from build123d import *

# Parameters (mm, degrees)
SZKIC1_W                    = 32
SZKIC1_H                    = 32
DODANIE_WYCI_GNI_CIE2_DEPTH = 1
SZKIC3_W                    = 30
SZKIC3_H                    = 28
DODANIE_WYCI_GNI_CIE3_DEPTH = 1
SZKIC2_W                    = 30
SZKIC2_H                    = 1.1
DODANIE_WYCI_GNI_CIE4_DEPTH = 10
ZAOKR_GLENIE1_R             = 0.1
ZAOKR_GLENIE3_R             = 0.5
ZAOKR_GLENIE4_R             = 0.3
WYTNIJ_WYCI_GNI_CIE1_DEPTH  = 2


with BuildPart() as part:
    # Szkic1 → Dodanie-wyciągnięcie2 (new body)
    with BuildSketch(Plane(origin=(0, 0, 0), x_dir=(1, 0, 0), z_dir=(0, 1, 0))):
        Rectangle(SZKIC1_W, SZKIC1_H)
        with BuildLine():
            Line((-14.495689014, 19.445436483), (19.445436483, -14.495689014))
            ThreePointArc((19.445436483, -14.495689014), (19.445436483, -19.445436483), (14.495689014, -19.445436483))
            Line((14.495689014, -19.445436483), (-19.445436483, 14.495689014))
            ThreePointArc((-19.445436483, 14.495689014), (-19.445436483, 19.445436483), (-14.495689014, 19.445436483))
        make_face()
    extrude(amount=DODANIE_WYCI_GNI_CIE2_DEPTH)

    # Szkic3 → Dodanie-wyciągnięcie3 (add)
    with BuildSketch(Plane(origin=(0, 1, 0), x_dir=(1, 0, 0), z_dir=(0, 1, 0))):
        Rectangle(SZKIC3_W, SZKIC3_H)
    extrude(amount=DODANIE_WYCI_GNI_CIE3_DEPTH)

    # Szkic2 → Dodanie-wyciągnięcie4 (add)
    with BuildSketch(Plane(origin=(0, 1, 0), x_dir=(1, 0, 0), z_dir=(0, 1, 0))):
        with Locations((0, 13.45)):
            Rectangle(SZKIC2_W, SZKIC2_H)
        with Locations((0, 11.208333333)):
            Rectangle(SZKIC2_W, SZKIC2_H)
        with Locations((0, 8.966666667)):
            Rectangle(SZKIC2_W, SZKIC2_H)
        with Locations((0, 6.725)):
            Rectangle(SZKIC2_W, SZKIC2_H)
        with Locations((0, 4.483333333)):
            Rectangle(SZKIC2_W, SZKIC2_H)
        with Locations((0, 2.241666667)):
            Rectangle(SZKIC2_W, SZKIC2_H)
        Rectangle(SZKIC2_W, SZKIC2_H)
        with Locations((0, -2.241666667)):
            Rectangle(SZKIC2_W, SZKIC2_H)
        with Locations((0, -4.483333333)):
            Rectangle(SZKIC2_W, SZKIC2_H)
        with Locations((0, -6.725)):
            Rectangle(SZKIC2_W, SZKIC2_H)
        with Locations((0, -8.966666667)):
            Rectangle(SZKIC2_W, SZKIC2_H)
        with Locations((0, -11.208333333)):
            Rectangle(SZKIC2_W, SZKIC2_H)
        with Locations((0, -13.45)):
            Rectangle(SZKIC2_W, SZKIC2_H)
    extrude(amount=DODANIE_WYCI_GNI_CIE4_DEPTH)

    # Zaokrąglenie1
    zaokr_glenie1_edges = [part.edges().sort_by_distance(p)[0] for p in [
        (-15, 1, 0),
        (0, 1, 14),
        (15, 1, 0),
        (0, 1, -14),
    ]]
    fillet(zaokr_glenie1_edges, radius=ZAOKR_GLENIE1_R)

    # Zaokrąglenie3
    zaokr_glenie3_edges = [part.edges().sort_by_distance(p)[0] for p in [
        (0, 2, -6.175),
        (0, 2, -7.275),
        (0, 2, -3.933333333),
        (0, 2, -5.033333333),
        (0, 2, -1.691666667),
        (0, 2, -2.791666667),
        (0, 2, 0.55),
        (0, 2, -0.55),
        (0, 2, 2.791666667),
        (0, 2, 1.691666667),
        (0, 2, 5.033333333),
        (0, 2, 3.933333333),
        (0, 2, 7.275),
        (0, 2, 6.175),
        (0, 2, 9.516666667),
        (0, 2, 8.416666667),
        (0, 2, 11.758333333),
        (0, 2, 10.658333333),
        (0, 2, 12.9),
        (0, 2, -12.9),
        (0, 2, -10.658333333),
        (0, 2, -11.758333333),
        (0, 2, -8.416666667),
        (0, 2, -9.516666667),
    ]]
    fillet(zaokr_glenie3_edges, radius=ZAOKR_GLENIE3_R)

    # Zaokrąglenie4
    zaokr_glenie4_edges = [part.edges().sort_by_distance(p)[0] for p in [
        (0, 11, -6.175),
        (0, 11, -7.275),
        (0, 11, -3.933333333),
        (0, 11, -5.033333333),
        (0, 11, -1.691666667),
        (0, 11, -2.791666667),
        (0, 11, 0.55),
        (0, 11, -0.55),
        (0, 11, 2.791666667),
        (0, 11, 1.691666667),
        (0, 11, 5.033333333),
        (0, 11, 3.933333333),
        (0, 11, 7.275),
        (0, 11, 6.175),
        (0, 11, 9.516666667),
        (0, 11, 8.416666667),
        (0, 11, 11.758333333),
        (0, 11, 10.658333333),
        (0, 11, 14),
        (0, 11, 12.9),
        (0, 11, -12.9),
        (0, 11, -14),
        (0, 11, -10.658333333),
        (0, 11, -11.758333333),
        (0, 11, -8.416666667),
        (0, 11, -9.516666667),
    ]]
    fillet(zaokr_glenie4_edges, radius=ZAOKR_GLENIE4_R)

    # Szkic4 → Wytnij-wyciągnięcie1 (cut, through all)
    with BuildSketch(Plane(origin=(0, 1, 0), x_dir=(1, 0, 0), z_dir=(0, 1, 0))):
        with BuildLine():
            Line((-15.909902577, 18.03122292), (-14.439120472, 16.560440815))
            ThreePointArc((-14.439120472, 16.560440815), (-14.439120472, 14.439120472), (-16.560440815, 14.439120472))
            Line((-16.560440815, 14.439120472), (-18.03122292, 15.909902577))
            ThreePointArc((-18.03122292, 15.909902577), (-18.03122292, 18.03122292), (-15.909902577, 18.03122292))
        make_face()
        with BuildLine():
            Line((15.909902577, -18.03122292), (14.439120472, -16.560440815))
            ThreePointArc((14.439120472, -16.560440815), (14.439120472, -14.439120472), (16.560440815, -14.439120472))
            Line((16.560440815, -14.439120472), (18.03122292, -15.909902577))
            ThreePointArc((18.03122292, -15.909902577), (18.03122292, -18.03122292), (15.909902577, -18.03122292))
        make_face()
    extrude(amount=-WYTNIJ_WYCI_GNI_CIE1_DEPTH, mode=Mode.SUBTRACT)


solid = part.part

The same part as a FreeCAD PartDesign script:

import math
import FreeCAD as App
import Part
import Sketcher

V = App.Vector
Q = App.Units.Quantity


def edges_at(feature, points):
    """Names of the edges that pass closest to the given points."""
    edges = feature.Shape.Edges
    near = lambda p: min(range(len(edges)), key=lambda i: edges[i].distToShape(Part.Vertex(*p))[0])
    return sorted({f"Edge{near(p) + 1}" for p in points})

doc = App.newDocument("Part")
body = doc.addObject("PartDesign::Body", "Body")

sketch1 = body.newObject("Sketcher::SketchObject", "Sketch")
sketch1.AttachmentSupport = (doc.getObject("XZ_Plane"), [""])
sketch1.MapMode = "FlatFace"
sketch1.addGeometry([
    Part.LineSegment(V(-16, -11.050253, 0), V(-16, 16, 0)),
    Part.LineSegment(V(-16, 16, 0), V(11.050253, 16, 0)),
    Part.LineSegment(V(11.050253, 16, 0), V(14.495689, 19.445436, 0)),
    Part.ArcOfCircle(Part.Circle(V(16.970563, 16.970563, 0), V(0, 0, 1), 3.5), math.radians(-45), math.radians(135)),
    Part.LineSegment(V(19.445436, 14.495689, 0), V(16, 11.050253, 0)),
    Part.LineSegment(V(16, 11.050253, 0), V(16, -16, 0)),
    Part.LineSegment(V(16, -16, 0), V(-11.050253, -16, 0)),
    Part.LineSegment(V(-11.050253, -16, 0), V(-14.495689, -19.445436, 0)),
    Part.ArcOfCircle(Part.Circle(V(-16.970563, -16.970563, 0), V(0, 0, 1), 3.5), math.radians(135), math.radians(315)),
    Part.LineSegment(V(-19.445436, -14.495689, 0), V(-16, -11.050253, 0)),
], False)
sketch1.addConstraint([
    Sketcher.Constraint("Coincident", 0, 2, 1, 1),
    Sketcher.Constraint("Coincident", 1, 2, 2, 1),
    Sketcher.Constraint("Tangent", 2, 2, 3, 2),
    Sketcher.Constraint("Tangent", 3, 1, 4, 1),
    Sketcher.Constraint("Coincident", 4, 2, 5, 1),
    Sketcher.Constraint("Coincident", 5, 2, 6, 1),
    Sketcher.Constraint("Coincident", 6, 2, 7, 1),
    Sketcher.Constraint("Tangent", 7, 2, 8, 2),
    Sketcher.Constraint("Tangent", 8, 1, 9, 1),
    Sketcher.Constraint("Coincident", 9, 2, 0, 1),
    Sketcher.Constraint("Vertical", 0),
    Sketcher.Constraint("Horizontal", 1),
    Sketcher.Constraint("Vertical", 5),
    Sketcher.Constraint("Horizontal", 6),
    Sketcher.Constraint("Equal", 3, 8),
    Sketcher.Constraint("Symmetric", 3, 3, 8, 3, -1, 1),
    Sketcher.Constraint("Symmetric", 0, 2, 5, 2, -1, 1),
    Sketcher.Constraint("Parallel", 2, 4),
    Sketcher.Constraint("Parallel", 4, 7),
    Sketcher.Constraint("Parallel", 7, 9),
    Sketcher.Constraint("Equal", 6, 0),
    Sketcher.Constraint("Equal", 2, 4),
    Sketcher.Constraint("Radius", 3, Q("3.5 mm")),
    Sketcher.Constraint("Angle", 2, Q("45 deg")),
    Sketcher.Constraint("DistanceX", 0, 2, -1, 1, Q("16 mm")),
    Sketcher.Constraint("DistanceY", 8, 3, 2, 2, Q("36.415999 mm")),
])
pad1 = body.newObject("PartDesign::Pad", "Pad")
pad1.Profile = sketch1
pad1.Length = 1
pad1.Reversed = True

sketch2 = body.newObject("Sketcher::SketchObject", "Sketch001")
sketch2.AttachmentSupport = (doc.getObject("XZ_Plane"), [""])
sketch2.MapMode = "FlatFace"
sketch2.AttachmentOffset = App.Placement(V(0, 0, -1), App.Rotation())
sketch2.addGeometry([
    Part.LineSegment(V(-15, -14, 0), V(-15, 14, 0)),
    Part.LineSegment(V(-15, 14, 0), V(15, 14, 0)),
    Part.LineSegment(V(15, 14, 0), V(15, -14, 0)),
    Part.LineSegment(V(15, -14, 0), V(-15, -14, 0)),
], False)
sketch2.addConstraint([
    Sketcher.Constraint("Coincident", 0, 2, 1, 1),
    Sketcher.Constraint("Coincident", 1, 2, 2, 1),
    Sketcher.Constraint("Coincident", 2, 2, 3, 1),
    Sketcher.Constraint("Coincident", 3, 2, 0, 1),
    Sketcher.Constraint("Vertical", 0),
    Sketcher.Constraint("Horizontal", 1),
    Sketcher.Constraint("Vertical", 2),
    Sketcher.Constraint("Horizontal", 3),
    Sketcher.Constraint("Symmetric", 0, 2, 2, 2, -1, 1),
    Sketcher.Constraint("DistanceX", 1, 1, 1, 2, Q("30 mm")),
    Sketcher.Constraint("DistanceY", 0, 1, 0, 2, Q("28 mm")),
])
pad2 = body.newObject("PartDesign::Pad", "Pad001")
pad2.Profile = sketch2
pad2.Length = 1
pad2.Reversed = True

sketch3 = body.newObject("Sketcher::SketchObject", "Sketch002")
sketch3.AttachmentSupport = (doc.getObject("XZ_Plane"), [""])
sketch3.MapMode = "FlatFace"
sketch3.AttachmentOffset = App.Placement(V(0, 0, -1), App.Rotation())
sketch3.addGeometry([
    Part.LineSegment(V(-15, -14, 0), V(-15, -12.9, 0)),
    Part.LineSegment(V(-15, -12.9, 0), V(15, -12.9, 0)),
    Part.LineSegment(V(15, -12.9, 0), V(15, -14, 0)),
    Part.LineSegment(V(15, -14, 0), V(-15, -14, 0)),
    Part.LineSegment(V(-15, -11.758333, 0), V(-15, -10.658333, 0)),
    Part.LineSegment(V(-15, -10.658333, 0), V(15, -10.658333, 0)),
    Part.LineSegment(V(15, -10.658333, 0), V(15, -11.758333, 0)),
    Part.LineSegment(V(15, -11.758333, 0), V(-15, -11.758333, 0)),
    Part.LineSegment(V(-15, -9.516667, 0), V(-15, -8.416667, 0)),
    Part.LineSegment(V(-15, -8.416667, 0), V(15, -8.416667, 0)),
    Part.LineSegment(V(15, -8.416667, 0), V(15, -9.516667, 0)),
    Part.LineSegment(V(15, -9.516667, 0), V(-15, -9.516667, 0)),
    Part.LineSegment(V(-15, -7.275, 0), V(-15, -6.175, 0)),
    Part.LineSegment(V(-15, -6.175, 0), V(15, -6.175, 0)),
    Part.LineSegment(V(15, -6.175, 0), V(15, -7.275, 0)),
    Part.LineSegment(V(15, -7.275, 0), V(-15, -7.275, 0)),
    Part.LineSegment(V(-15, -5.033333, 0), V(-15, -3.933333, 0)),
    Part.LineSegment(V(-15, -3.933333, 0), V(15, -3.933333, 0)),
    Part.LineSegment(V(15, -3.933333, 0), V(15, -5.033333, 0)),
    Part.LineSegment(V(15, -5.033333, 0), V(-15, -5.033333, 0)),
    Part.LineSegment(V(-15, -2.791667, 0), V(-15, -1.691667, 0)),
    Part.LineSegment(V(-15, -1.691667, 0), V(15, -1.691667, 0)),
    Part.LineSegment(V(15, -1.691667, 0), V(15, -2.791667, 0)),
    Part.LineSegment(V(15, -2.791667, 0), V(-15, -2.791667, 0)),
    Part.LineSegment(V(-15, -0.55, 0), V(-15, 0.55, 0)),
    Part.LineSegment(V(-15, 0.55, 0), V(15, 0.55, 0)),
    Part.LineSegment(V(15, 0.55, 0), V(15, -0.55, 0)),
    Part.LineSegment(V(15, -0.55, 0), V(-15, -0.55, 0)),
    Part.LineSegment(V(-15, 1.691667, 0), V(-15, 2.791667, 0)),
    Part.LineSegment(V(-15, 2.791667, 0), V(15, 2.791667, 0)),
    Part.LineSegment(V(15, 2.791667, 0), V(15, 1.691667, 0)),
    Part.LineSegment(V(15, 1.691667, 0), V(-15, 1.691667, 0)),
    Part.LineSegment(V(-15, 3.933333, 0), V(-15, 5.033333, 0)),
    Part.LineSegment(V(-15, 5.033333, 0), V(15, 5.033333, 0)),
    Part.LineSegment(V(15, 5.033333, 0), V(15, 3.933333, 0)),
    Part.LineSegment(V(15, 3.933333, 0), V(-15, 3.933333, 0)),
    Part.LineSegment(V(-15, 6.175, 0), V(-15, 7.275, 0)),
    Part.LineSegment(V(-15, 7.275, 0), V(15, 7.275, 0)),
    Part.LineSegment(V(15, 7.275, 0), V(15, 6.175, 0)),
    Part.LineSegment(V(15, 6.175, 0), V(-15, 6.175, 0)),
    Part.LineSegment(V(-15, 8.416667, 0), V(-15, 9.516667, 0)),
    Part.LineSegment(V(-15, 9.516667, 0), V(15, 9.516667, 0)),
    Part.LineSegment(V(15, 9.516667, 0), V(15, 8.416667, 0)),
    Part.LineSegment(V(15, 8.416667, 0), V(-15, 8.416667, 0)),
    Part.LineSegment(V(-15, 10.658333, 0), V(-15, 11.758333, 0)),
    Part.LineSegment(V(-15, 11.758333, 0), V(15, 11.758333, 0)),
    Part.LineSegment(V(15, 11.758333, 0), V(15, 10.658333, 0)),
    Part.LineSegment(V(15, 10.658333, 0), V(-15, 10.658333, 0)),
    Part.LineSegment(V(-15, 12.9, 0), V(-15, 14, 0)),
    Part.LineSegment(V(-15, 14, 0), V(15, 14, 0)),
    Part.LineSegment(V(15, 14, 0), V(15, 12.9, 0)),
    Part.LineSegment(V(15, 12.9, 0), V(-15, 12.9, 0)),
], False)
sketch3.addConstraint([
    Sketcher.Constraint("Coincident", 0, 2, 1, 1),
    Sketcher.Constraint("Coincident", 1, 2, 2, 1),
    Sketcher.Constraint("Coincident", 2, 2, 3, 1),
    Sketcher.Constraint("Coincident", 3, 2, 0, 1),
    Sketcher.Constraint("Coincident", 4, 2, 5, 1),
    Sketcher.Constraint("Coincident", 5, 2, 6, 1),
    Sketcher.Constraint("Coincident", 6, 2, 7, 1),
    Sketcher.Constraint("Coincident", 7, 2, 4, 1),
    Sketcher.Constraint("Coincident", 8, 2, 9, 1),
    Sketcher.Constraint("Coincident", 9, 2, 10, 1),
    Sketcher.Constraint("Coincident", 10, 2, 11, 1),
    Sketcher.Constraint("Coincident", 11, 2, 8, 1),
    Sketcher.Constraint("Coincident", 12, 2, 13, 1),
    Sketcher.Constraint("Coincident", 13, 2, 14, 1),
    Sketcher.Constraint("Coincident", 14, 2, 15, 1),
    Sketcher.Constraint("Coincident", 15, 2, 12, 1),
    Sketcher.Constraint("Coincident", 16, 2, 17, 1),
    Sketcher.Constraint("Coincident", 17, 2, 18, 1),
    Sketcher.Constraint("Coincident", 18, 2, 19, 1),
    Sketcher.Constraint("Coincident", 19, 2, 16, 1),
    Sketcher.Constraint("Coincident", 20, 2, 21, 1),
    Sketcher.Constraint("Coincident", 21, 2, 22, 1),
    Sketcher.Constraint("Coincident", 22, 2, 23, 1),
    Sketcher.Constraint("Coincident", 23, 2, 20, 1),
    Sketcher.Constraint("Coincident", 24, 2, 25, 1),
    Sketcher.Constraint("Coincident", 25, 2, 26, 1),
    Sketcher.Constraint("Coincident", 26, 2, 27, 1),
    Sketcher.Constraint("Coincident", 27, 2, 24, 1),
    Sketcher.Constraint("Coincident", 28, 2, 29, 1),
    Sketcher.Constraint("Coincident", 29, 2, 30, 1),
    Sketcher.Constraint("Coincident", 30, 2, 31, 1),
    Sketcher.Constraint("Coincident", 31, 2, 28, 1),
    Sketcher.Constraint("Coincident", 32, 2, 33, 1),
    Sketcher.Constraint("Coincident", 33, 2, 34, 1),
    Sketcher.Constraint("Coincident", 34, 2, 35, 1),
    Sketcher.Constraint("Coincident", 35, 2, 32, 1),
    Sketcher.Constraint("Coincident", 36, 2, 37, 1),
    Sketcher.Constraint("Coincident", 37, 2, 38, 1),
    Sketcher.Constraint("Coincident", 38, 2, 39, 1),
    Sketcher.Constraint("Coincident", 39, 2, 36, 1),
    Sketcher.Constraint("Coincident", 40, 2, 41, 1),
    Sketcher.Constraint("Coincident", 41, 2, 42, 1),
    Sketcher.Constraint("Coincident", 42, 2, 43, 1),
    Sketcher.Constraint("Coincident", 43, 2, 40, 1),
    Sketcher.Constraint("Coincident", 44, 2, 45, 1),
    Sketcher.Constraint("Coincident", 45, 2, 46, 1),
    Sketcher.Constraint("Coincident", 46, 2, 47, 1),
    Sketcher.Constraint("Coincident", 47, 2, 44, 1),
    Sketcher.Constraint("Coincident", 48, 2, 49, 1),
    Sketcher.Constraint("Coincident", 49, 2, 50, 1),
    Sketcher.Constraint("Coincident", 50, 2, 51, 1),
    Sketcher.Constraint("Coincident", 51, 2, 48, 1),
    Sketcher.Constraint("Vertical", 0),
    Sketcher.Constraint("Horizontal", 1),
    Sketcher.Constraint("Vertical", 2),
    Sketcher.Constraint("Horizontal", 3),
    Sketcher.Constraint("Vertical", 4),
    Sketcher.Constraint("Horizontal", 5),
    Sketcher.Constraint("Vertical", 6),
    Sketcher.Constraint("Horizontal", 7),
    Sketcher.Constraint("Vertical", 8),
    Sketcher.Constraint("Horizontal", 9),
    Sketcher.Constraint("Vertical", 10),
    Sketcher.Constraint("Horizontal", 11),
    Sketcher.Constraint("Vertical", 12),
    Sketcher.Constraint("Horizontal", 13),
    Sketcher.Constraint("Vertical", 14),
    Sketcher.Constraint("Horizontal", 15),
    Sketcher.Constraint("Vertical", 16),
    Sketcher.Constraint("Horizontal", 17),
    Sketcher.Constraint("Vertical", 18),
    Sketcher.Constraint("Horizontal", 19),
    Sketcher.Constraint("Vertical", 20),
    Sketcher.Constraint("Horizontal", 21),
    Sketcher.Constraint("Vertical", 22),
    Sketcher.Constraint("Horizontal", 23),
    Sketcher.Constraint("Vertical", 24),
    Sketcher.Constraint("Horizontal", 25),
    Sketcher.Constraint("Vertical", 26),
    Sketcher.Constraint("Horizontal", 27),
    Sketcher.Constraint("Vertical", 28),
    Sketcher.Constraint("Horizontal", 29),
    Sketcher.Constraint("Vertical", 30),
    Sketcher.Constraint("Horizontal", 31),
    Sketcher.Constraint("Vertical", 32),
    Sketcher.Constraint("Horizontal", 33),
    Sketcher.Constraint("Vertical", 34),
    Sketcher.Constraint("Horizontal", 35),
    Sketcher.Constraint("Vertical", 36),
    Sketcher.Constraint("Horizontal", 37),
    Sketcher.Constraint("Vertical", 38),
    Sketcher.Constraint("Horizontal", 39),
    Sketcher.Constraint("Vertical", 40),
    Sketcher.Constraint("Horizontal", 41),
    Sketcher.Constraint("Vertical", 42),
    Sketcher.Constraint("Horizontal", 43),
    Sketcher.Constraint("Vertical", 44),
    Sketcher.Constraint("Horizontal", 45),
    Sketcher.Constraint("Vertical", 46),
    Sketcher.Constraint("Horizontal", 47),
    Sketcher.Constraint("Vertical", 48),
    Sketcher.Constraint("Horizontal", 49),
    Sketcher.Constraint("Vertical", 50),
    Sketcher.Constraint("Horizontal", 51),
    Sketcher.Constraint("Symmetric", 24, 2, 26, 2, -1, 1),
    Sketcher.Constraint("Symmetric", 22, 2, 28, 2, -1, 1),
    Sketcher.Constraint("Symmetric", 20, 2, 30, 2, -1, 1),
    Sketcher.Constraint("Symmetric", 18, 2, 32, 2, -1, 1),
    Sketcher.Constraint("Symmetric", 16, 2, 34, 2, -1, 1),
    Sketcher.Constraint("Symmetric", 14, 2, 36, 2, -1, 1),
    Sketcher.Constraint("Symmetric", 12, 2, 38, 2, -1, 1),
    Sketcher.Constraint("Symmetric", 10, 2, 40, 2, -1, 1),
    Sketcher.Constraint("Symmetric", 8, 2, 42, 2, -1, 1),
    Sketcher.Constraint("Symmetric", 6, 2, 44, 2, -1, 1),
    Sketcher.Constraint("Symmetric", 4, 2, 46, 2, -1, 1),
    Sketcher.Constraint("Symmetric", 2, 2, 48, 2, -1, 1),
    Sketcher.Constraint("Symmetric", 0, 2, 50, 2, -1, 1),
    Sketcher.Constraint("Vertical", 3, 2, 4, 2),
    Sketcher.Constraint("Vertical", 2, 2, 5, 2),
    Sketcher.Constraint("Vertical", 7, 2, 8, 2),
    Sketcher.Constraint("Vertical", 6, 2, 9, 2),
    Sketcher.Constraint("Vertical", 11, 2, 12, 2),
    Sketcher.Constraint("Vertical", 10, 2, 13, 2),
    Sketcher.Constraint("Vertical", 15, 2, 16, 2),
    Sketcher.Constraint("Vertical", 14, 2, 17, 2),
    Sketcher.Constraint("Vertical", 19, 2, 20, 2),
    Sketcher.Constraint("Vertical", 18, 2, 21, 2),
    Sketcher.Constraint("Vertical", 23, 2, 24, 2),
    Sketcher.Constraint("Vertical", 22, 2, 25, 2),
    Sketcher.Constraint("Equal", 2, 4),
    Sketcher.Constraint("Equal", 6, 8),
    Sketcher.Constraint("Equal", 10, 12),
    Sketcher.Constraint("Equal", 14, 16),
    Sketcher.Constraint("Equal", 18, 20),
    Sketcher.Constraint("Equal", 22, 24),
    Sketcher.Constraint("DistanceX", 1, 1, 1, 2, Q("30 mm")),
    Sketcher.Constraint("DistanceY", 0, 1, 0, 2, Q("1.1 mm")),
    Sketcher.Constraint("DistanceY", 2, 2, -1, 1, Q("14 mm")),
    Sketcher.Constraint("DistanceY", 12, 2, -1, 1, Q("6.175 mm")),
    Sketcher.Constraint("DistanceY", 4, 2, 16, 2, Q("6.725 mm")),
    Sketcher.Constraint("DistanceY", 8, 2, 20, 2, Q("6.725 mm")),
    Sketcher.Constraint("DistanceY", 16, 2, 28, 2, Q("6.725 mm")),
    Sketcher.Constraint("DistanceY", 4, 2, -1, 1, Q("10.658333 mm")),
])
pad3 = body.newObject("PartDesign::Pad", "Pad002")
pad3.Profile = sketch3
pad3.Length = 10
pad3.Reversed = True
doc.recompute()

fillet = body.newObject("PartDesign::Fillet", "Fillet")
fillet.Base = (pad3, edges_at(pad3, [
    (-15, 1, 0),
    (0, 1, 14),
    (15, 1, 0),
    (0, 1, -14),
]))
fillet.Radius = 0.1
doc.recompute()

fillet2 = body.newObject("PartDesign::Fillet", "Fillet001")
fillet2.Base = (fillet, edges_at(fillet, [
    (0, 2, -6.175),
    (0, 2, -7.275),
    (0, 2, -3.933),
    (0, 2, -5.033),
    (0, 2, -1.692),
    (0, 2, -2.792),
    (0, 2, 0.55),
    (0, 2, -0.55),
    (0, 2, 2.792),
    (0, 2, 1.692),
    (0, 2, 5.033),
    (0, 2, 3.933),
    (0, 2, 7.275),
    (0, 2, 6.175),
    (0, 2, 9.517),
    (0, 2, 8.417),
    (0, 2, 11.758),
    (0, 2, 10.658),
    (0, 2, 12.9),
    (0, 2, -12.9),
    (0, 2, -10.658),
    (0, 2, -11.758),
    (0, 2, -8.417),
    (0, 2, -9.517),
]))
fillet2.Radius = 0.5
doc.recompute()

fillet3 = body.newObject("PartDesign::Fillet", "Fillet002")
fillet3.Base = (fillet2, edges_at(fillet2, [
    (0, 11, -6.175),
    (0, 11, -7.275),
    (0, 11, -3.933),
    (0, 11, -5.033),
    (0, 11, -1.692),
    (0, 11, -2.792),
    (0, 11, 0.55),
    (0, 11, -0.55),
    (0, 11, 2.792),
    (0, 11, 1.692),
    (0, 11, 5.033),
    (0, 11, 3.933),
    (0, 11, 7.275),
    (0, 11, 6.175),
    (0, 11, 9.517),
    (0, 11, 8.417),
    (0, 11, 11.758),
    (0, 11, 10.658),
    (0, 11, 14),
    (0, 11, 12.9),
    (0, 11, -12.9),
    (0, 11, -14),
    (0, 11, -10.658),
    (0, 11, -11.758),
    (0, 11, -8.417),
    (0, 11, -9.517),
]))
fillet3.Radius = 0.3

sketch4 = body.newObject("Sketcher::SketchObject", "Sketch003")
sketch4.AttachmentSupport = (doc.getObject("XZ_Plane"), [""])
sketch4.MapMode = "FlatFace"
sketch4.AttachmentOffset = App.Placement(V(0, 0, -1), App.Rotation())
sketch4.addGeometry([
    Part.LineSegment(V(-14.43912, -16.560441, 0), V(-15.909903, -18.031223, 0)),
    Part.ArcOfCircle(Part.Circle(V(-16.970563, -16.970563, 0), V(0, 0, 1), 1.5), math.radians(135), math.radians(315)),
    Part.LineSegment(V(-18.031223, -15.909903, 0), V(-16.560441, -14.43912, 0)),
    Part.ArcOfCircle(Part.Circle(V(-15.499781, -15.499781, 0), V(0, 0, 1), 1.5), math.radians(-45), math.radians(135)),
    Part.LineSegment(V(14.43912, 16.560441, 0), V(15.909903, 18.031223, 0)),
    Part.ArcOfCircle(Part.Circle(V(16.970563, 16.970563, 0), V(0, 0, 1), 1.5), math.radians(-45), math.radians(135)),
    Part.LineSegment(V(18.031223, 15.909903, 0), V(16.560441, 14.43912, 0)),
    Part.ArcOfCircle(Part.Circle(V(15.499781, 15.499781, 0), V(0, 0, 1), 1.5), math.radians(135), math.radians(315)),
], False)
sketch4.addConstraint([
    Sketcher.Constraint("Tangent", 0, 2, 1, 2),
    Sketcher.Constraint("Tangent", 1, 1, 2, 1),
    Sketcher.Constraint("Tangent", 2, 2, 3, 2),
    Sketcher.Constraint("Tangent", 3, 1, 0, 1),
    Sketcher.Constraint("Tangent", 4, 2, 5, 2),
    Sketcher.Constraint("Tangent", 5, 1, 6, 1),
    Sketcher.Constraint("Tangent", 6, 2, 7, 2),
    Sketcher.Constraint("Tangent", 7, 1, 4, 1),
    Sketcher.Constraint("Equal", 1, 3),
    Sketcher.Constraint("Equal", 3, 5),
    Sketcher.Constraint("Equal", 5, 7),
    Sketcher.Constraint("Symmetric", 1, 3, 5, 3, -1, 1),
    Sketcher.Constraint("Symmetric", 3, 3, 7, 3, -1, 1),
    Sketcher.Constraint("Radius", 1, Q("1.5 mm")),
    Sketcher.Constraint("Angle", 0, Q("-135 deg")),
    Sketcher.Constraint("Distance", 0, Q("2.08 mm")),
    Sketcher.Constraint("DistanceY", 2, 2, 7, 3, Q("29.938901 mm")),
    Sketcher.Constraint("DistanceX", 3, 3, -1, 1, Q("15.499781 mm")),
])
pocket1 = body.newObject("PartDesign::Pocket", "Pocket")
pocket1.Profile = sketch4
pocket1.Type = "ThroughAll"
pocket1.Reversed = True

doc.recompute()
